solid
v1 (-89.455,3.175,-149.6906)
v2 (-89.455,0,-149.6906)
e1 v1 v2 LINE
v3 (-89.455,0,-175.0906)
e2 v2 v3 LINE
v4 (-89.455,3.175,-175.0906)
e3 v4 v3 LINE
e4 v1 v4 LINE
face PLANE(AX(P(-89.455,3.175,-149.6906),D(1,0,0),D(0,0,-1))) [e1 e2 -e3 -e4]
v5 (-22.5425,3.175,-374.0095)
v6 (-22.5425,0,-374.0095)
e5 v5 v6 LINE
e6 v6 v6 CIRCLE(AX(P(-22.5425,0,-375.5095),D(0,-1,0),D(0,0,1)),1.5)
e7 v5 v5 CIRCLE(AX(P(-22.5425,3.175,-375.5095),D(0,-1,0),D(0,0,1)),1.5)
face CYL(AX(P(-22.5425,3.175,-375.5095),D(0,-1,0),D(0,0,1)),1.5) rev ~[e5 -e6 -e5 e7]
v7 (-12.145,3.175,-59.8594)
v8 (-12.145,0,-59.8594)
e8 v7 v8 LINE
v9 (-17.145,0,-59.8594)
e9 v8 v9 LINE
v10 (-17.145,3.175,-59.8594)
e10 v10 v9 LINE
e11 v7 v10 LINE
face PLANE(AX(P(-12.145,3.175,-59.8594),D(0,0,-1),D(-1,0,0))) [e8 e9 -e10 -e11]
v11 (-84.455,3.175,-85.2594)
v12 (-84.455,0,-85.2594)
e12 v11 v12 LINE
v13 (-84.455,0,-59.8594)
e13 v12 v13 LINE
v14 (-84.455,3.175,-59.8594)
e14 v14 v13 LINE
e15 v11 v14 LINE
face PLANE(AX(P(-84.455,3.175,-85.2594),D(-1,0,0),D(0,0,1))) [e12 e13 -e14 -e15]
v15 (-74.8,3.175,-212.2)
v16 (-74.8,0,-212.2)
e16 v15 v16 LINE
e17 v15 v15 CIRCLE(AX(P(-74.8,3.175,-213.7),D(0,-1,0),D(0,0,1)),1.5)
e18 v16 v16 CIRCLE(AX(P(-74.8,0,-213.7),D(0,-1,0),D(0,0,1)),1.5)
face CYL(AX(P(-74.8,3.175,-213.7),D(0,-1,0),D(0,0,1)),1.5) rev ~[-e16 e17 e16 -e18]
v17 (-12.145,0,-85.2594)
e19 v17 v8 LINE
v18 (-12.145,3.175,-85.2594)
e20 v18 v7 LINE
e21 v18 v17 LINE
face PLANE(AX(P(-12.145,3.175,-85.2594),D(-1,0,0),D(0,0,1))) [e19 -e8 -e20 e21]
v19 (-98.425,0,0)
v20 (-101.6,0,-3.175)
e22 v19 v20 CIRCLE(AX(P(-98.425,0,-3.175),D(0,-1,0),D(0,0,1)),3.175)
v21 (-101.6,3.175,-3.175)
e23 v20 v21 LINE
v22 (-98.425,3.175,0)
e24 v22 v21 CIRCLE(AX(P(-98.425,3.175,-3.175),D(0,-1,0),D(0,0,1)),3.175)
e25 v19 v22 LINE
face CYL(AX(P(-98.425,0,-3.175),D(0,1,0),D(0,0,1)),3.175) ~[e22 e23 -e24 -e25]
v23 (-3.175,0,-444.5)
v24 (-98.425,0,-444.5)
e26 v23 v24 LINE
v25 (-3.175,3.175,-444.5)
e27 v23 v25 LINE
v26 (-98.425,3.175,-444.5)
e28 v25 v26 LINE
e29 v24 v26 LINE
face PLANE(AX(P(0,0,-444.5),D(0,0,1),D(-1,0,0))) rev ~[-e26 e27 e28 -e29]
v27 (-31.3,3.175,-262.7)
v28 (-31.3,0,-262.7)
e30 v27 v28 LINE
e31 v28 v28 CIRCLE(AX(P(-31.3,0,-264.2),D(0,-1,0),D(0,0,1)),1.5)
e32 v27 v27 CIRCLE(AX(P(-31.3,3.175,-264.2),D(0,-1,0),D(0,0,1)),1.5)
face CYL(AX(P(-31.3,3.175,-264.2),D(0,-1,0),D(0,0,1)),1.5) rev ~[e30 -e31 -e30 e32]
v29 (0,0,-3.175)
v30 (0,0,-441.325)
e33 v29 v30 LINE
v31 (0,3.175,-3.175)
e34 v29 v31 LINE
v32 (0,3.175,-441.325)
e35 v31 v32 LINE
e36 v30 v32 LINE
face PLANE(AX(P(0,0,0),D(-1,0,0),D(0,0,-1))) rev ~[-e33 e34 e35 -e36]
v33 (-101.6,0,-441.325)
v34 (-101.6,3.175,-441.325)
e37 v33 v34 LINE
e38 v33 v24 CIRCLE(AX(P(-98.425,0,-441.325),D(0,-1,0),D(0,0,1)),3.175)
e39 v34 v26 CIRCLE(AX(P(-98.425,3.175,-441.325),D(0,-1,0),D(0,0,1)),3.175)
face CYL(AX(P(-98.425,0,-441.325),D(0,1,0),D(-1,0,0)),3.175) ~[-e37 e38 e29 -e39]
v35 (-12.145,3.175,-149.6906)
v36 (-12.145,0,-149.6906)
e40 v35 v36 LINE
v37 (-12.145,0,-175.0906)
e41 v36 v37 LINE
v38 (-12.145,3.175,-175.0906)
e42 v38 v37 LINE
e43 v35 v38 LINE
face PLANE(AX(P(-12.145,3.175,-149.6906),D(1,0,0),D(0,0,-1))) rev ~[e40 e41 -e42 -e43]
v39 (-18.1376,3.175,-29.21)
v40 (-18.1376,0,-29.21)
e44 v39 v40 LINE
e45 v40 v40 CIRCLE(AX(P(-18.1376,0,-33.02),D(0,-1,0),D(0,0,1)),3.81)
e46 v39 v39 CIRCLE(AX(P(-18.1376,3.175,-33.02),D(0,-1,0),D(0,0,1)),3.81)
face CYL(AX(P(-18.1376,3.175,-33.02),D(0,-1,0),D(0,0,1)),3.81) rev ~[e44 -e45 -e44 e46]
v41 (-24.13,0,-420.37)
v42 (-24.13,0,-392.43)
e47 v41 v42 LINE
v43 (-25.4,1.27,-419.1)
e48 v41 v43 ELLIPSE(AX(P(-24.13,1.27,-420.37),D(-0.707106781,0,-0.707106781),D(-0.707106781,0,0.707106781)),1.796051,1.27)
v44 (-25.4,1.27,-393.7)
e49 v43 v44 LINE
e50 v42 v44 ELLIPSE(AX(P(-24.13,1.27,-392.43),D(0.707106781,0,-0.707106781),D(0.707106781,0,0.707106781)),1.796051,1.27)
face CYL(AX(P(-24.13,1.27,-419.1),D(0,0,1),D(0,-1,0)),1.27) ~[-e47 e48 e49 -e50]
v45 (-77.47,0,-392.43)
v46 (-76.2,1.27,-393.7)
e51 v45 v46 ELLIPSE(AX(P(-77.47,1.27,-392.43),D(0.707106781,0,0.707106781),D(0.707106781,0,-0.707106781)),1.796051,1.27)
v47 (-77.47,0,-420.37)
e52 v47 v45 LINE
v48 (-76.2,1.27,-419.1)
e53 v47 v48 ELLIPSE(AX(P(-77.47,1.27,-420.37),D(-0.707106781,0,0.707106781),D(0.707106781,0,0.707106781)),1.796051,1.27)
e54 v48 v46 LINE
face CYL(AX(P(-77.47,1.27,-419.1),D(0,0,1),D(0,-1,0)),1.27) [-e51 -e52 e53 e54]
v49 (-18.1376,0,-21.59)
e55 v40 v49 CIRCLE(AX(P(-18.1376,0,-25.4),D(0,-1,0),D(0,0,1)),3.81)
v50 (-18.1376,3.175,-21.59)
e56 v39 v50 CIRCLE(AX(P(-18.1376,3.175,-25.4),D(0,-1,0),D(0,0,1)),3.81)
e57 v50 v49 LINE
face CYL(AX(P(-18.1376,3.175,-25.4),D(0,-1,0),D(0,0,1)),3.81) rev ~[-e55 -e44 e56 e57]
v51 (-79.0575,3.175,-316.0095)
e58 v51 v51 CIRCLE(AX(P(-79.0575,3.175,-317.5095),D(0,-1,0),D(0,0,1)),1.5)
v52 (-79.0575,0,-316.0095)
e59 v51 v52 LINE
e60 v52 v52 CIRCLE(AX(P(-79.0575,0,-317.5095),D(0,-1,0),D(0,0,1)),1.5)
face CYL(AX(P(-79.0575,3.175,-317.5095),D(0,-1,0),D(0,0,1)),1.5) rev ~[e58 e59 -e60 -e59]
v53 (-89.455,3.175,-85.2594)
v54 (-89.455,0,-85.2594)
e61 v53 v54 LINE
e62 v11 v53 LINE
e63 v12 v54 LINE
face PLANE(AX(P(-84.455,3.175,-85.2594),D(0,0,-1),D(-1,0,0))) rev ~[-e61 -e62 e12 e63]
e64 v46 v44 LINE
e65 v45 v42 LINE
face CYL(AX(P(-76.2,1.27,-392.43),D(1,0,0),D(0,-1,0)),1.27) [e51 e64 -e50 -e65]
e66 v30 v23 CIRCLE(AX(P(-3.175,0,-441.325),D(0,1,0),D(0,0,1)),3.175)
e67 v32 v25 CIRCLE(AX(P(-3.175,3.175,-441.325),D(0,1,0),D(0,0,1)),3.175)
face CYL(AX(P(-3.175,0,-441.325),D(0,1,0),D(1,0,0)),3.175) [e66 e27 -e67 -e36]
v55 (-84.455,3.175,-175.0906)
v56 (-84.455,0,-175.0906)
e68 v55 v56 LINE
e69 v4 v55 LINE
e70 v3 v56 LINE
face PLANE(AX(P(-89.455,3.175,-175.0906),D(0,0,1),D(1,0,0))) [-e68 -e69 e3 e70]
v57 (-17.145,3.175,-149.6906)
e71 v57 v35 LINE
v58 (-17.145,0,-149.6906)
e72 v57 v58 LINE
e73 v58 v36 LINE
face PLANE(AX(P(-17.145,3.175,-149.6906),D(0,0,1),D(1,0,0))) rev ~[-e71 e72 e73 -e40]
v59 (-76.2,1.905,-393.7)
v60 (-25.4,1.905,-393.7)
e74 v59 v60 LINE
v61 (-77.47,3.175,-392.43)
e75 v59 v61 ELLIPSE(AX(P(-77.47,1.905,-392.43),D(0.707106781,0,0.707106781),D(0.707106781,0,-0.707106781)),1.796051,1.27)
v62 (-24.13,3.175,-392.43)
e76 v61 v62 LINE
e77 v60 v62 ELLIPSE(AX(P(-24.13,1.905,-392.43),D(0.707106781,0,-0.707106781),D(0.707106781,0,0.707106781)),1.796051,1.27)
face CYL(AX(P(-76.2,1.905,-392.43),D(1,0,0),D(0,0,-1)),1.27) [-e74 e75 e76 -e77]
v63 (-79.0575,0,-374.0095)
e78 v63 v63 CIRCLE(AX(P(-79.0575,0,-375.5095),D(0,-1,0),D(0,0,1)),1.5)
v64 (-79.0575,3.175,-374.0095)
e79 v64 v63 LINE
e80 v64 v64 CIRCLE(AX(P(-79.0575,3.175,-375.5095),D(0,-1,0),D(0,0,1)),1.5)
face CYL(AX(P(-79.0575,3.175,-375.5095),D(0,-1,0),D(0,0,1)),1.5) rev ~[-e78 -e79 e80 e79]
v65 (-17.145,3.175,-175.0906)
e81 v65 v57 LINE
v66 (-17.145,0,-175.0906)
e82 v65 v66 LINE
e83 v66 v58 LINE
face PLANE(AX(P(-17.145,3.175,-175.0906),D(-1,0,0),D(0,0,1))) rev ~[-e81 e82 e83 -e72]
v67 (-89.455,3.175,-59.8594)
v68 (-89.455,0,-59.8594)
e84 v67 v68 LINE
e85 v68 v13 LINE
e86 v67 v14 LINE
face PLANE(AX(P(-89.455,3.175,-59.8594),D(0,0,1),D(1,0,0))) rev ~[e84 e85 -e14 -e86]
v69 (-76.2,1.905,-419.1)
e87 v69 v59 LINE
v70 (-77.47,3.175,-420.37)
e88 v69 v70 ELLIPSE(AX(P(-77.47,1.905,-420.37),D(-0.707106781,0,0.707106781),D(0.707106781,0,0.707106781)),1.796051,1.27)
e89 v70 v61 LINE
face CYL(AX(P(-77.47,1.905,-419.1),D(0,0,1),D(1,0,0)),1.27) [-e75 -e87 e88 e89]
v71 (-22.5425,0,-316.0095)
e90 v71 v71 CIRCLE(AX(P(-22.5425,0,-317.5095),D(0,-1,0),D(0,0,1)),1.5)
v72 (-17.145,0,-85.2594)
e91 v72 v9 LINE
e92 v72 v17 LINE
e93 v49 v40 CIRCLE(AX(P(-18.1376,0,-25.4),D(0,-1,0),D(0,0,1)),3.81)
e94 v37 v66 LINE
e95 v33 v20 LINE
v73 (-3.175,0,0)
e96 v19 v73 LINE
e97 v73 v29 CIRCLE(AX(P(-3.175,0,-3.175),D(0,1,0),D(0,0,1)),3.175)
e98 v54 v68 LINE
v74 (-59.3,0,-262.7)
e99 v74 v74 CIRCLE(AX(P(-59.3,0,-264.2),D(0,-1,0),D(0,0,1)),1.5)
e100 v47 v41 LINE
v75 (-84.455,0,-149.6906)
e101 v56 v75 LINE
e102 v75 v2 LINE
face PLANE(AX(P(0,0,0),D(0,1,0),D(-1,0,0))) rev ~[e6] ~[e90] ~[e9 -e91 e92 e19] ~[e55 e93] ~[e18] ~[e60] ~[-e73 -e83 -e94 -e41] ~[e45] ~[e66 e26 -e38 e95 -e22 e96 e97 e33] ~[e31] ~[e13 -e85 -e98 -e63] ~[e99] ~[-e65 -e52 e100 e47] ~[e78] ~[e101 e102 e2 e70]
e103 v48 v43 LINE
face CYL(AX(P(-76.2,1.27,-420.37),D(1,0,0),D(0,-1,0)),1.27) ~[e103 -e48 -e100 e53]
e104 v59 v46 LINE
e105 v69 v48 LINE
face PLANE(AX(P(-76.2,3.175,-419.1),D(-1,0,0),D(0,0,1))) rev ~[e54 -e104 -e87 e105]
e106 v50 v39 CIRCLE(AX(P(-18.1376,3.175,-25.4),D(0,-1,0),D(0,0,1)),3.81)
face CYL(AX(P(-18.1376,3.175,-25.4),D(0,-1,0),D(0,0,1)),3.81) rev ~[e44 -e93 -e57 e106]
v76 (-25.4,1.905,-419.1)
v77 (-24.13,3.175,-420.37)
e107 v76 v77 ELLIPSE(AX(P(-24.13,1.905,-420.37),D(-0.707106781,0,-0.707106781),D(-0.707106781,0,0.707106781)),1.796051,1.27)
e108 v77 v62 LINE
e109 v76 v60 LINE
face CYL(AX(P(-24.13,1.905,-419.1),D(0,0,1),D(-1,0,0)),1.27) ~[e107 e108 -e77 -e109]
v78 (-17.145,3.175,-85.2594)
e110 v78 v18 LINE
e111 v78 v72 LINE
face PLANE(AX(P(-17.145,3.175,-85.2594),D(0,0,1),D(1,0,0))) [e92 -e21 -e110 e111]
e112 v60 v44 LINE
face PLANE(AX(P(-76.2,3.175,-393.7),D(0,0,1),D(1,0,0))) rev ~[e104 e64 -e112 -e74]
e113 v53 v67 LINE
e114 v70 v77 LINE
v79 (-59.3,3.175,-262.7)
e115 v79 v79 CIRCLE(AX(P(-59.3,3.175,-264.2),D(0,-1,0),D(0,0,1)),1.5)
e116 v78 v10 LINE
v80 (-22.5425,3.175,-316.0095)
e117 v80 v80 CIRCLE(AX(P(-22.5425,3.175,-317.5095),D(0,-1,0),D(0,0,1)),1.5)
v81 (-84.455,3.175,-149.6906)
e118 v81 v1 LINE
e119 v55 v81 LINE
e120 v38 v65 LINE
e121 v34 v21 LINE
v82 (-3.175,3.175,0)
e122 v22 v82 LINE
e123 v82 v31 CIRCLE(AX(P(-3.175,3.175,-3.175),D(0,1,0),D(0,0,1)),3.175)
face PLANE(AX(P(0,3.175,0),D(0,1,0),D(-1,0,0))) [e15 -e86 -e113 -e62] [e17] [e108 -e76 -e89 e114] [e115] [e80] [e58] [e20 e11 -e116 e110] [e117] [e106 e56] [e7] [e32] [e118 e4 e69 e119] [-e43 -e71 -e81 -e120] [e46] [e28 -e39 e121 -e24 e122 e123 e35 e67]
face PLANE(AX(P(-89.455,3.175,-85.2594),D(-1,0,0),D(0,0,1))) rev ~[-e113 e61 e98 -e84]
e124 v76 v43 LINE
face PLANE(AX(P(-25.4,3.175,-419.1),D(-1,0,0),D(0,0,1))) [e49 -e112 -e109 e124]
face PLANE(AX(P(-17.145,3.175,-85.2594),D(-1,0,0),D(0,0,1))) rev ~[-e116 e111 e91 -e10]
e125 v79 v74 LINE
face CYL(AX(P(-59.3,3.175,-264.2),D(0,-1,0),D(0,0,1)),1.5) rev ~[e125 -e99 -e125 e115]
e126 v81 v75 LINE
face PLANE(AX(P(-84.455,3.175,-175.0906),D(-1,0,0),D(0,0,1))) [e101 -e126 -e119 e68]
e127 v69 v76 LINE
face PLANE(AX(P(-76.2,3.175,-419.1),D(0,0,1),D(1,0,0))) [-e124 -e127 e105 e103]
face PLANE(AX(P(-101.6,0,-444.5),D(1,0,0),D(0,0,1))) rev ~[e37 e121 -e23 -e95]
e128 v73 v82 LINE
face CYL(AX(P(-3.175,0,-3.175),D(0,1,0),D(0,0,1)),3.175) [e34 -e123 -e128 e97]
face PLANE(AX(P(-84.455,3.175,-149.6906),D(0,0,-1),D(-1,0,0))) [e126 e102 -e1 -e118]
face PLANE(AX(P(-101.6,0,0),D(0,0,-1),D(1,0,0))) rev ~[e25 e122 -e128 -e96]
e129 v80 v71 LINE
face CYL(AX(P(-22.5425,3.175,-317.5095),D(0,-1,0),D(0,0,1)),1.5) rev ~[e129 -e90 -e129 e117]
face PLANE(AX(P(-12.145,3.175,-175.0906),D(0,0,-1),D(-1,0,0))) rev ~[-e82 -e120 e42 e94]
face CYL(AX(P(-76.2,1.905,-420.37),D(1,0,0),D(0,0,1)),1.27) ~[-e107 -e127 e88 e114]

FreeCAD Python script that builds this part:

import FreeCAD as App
import Part
import Sketcher

V = App.Vector
Q = App.Units.Quantity


def edges_at(feature, points):
    """Names of the edges that pass closest to the given points."""
    edges = feature.Shape.Edges
    near = lambda p: min(range(len(edges)), key=lambda i: edges[i].distToShape(Part.Vertex(*p))[0])
    return sorted({f"Edge{near(p) + 1}" for p in points})


def add_polygon(sketch, points):
    """Adds a closed chain of lines whose ends are joined by coincident constraints."""
    first, n = sketch.GeometryCount, len(points)
    for a, b in zip(points, points[1:] + points[:1]):
        sketch.addGeometry(Part.LineSegment(App.Vector(*a, 0), App.Vector(*b, 0)), False)
    for i in range(n):
        sketch.addConstraint(Sketcher.Constraint("Coincident", first + i, 2, first + (i + 1) % n, 1))

doc = App.newDocument("Part")
params = doc.addObject("Spreadsheet::Sheet", "Params")
for row, (alias, value) in enumerate([
    ("sketch1_width", "4 in"),
    ("sketch1_height", "17.5 in"),
    ("pad1_length", "0.125 in"),
    ("sketch2_height", "1 in"),
    ("sketch2_width", "2 in"),
    ("pocket1_length", "0.125 in"),
    ("hole_diameter", "0.1181102 in"),
    ("hole2_diameter", "0.1181102 in"),
    ("sketch5_height", "1 in"),
    ("pocket2_length", "0.125 in"),
    ("sketch6_diameter", "0.3 in"),
    ("hole3_diameter", "0.3 in"),
    ("fillet_radius", "0.125 in"),
    ("fillet2_radius", "0.125 in"),
    ("fillet3_radius", "0.05 in"),
], start=1):
    params.set(f"A{row}", alias)
    params.set(f"B{row}", "=" + value)
    params.setAlias(f"B{row}", alias)

body = doc.addObject("PartDesign::Body", "Body")

# Sketch on XZ plane
sketch1 = doc.addObject("Sketcher::SketchObject", "Sketch")
body.addObject(sketch1)
sketch1.AttachmentSupport = (doc.XZ_Plane, [""])
sketch1.MapMode = "FlatFace"
add_polygon(sketch1, [(-102, 0), (0, 0), (0, -444), (-102, -444)])  # lines 0-3
sketch1.addConstraint(Sketcher.Constraint("Horizontal", 0))
sketch1.addConstraint(Sketcher.Constraint("Vertical", 1))
sketch1.addConstraint(Sketcher.Constraint("Horizontal", 2))
sketch1.addConstraint(Sketcher.Constraint("Vertical", 3))
sketch1.addConstraint(Sketcher.Constraint("Coincident", 0, 2, -1, 1))
sketch1.addConstraint(Sketcher.Constraint("DistanceX", 0, 1, 0, 2, Q("4 in")))
sketch1.addConstraint(Sketcher.Constraint("DistanceY", 1, 2, 1, 1, Q("17.5 in")))
sketch1.setExpression("Constraints[9]", "Params.sketch1_width")
sketch1.setExpression("Constraints[10]", "Params.sketch1_height")
pad1 = doc.addObject("PartDesign::Pad", "Pad")
body.addObject(pad1)
pad1.Profile = sketch1
pad1.setExpression("Length", "Params.pad1_length")
pad1.Reversed = True

# Sketch on XZ plane
sketch2 = doc.addObject("Sketcher::SketchObject", "Sketch001")
body.addObject(sketch2)
sketch2.AttachmentSupport = (doc.XZ_Plane, [""])
sketch2.MapMode = "FlatFace"
sketch2.AttachmentOffset = App.Placement(V(0, 0, -0.125 * 25.4), App.Rotation())
add_polygon(sketch2, [(-25, -419), (-76, -419), (-76, -394), (-25, -394)])  # lines 0-3
sketch2.addConstraint(Sketcher.Constraint("Horizontal", 0))
sketch2.addConstraint(Sketcher.Constraint("Vertical", 1))
sketch2.addConstraint(Sketcher.Constraint("Horizontal", 2))
sketch2.addConstraint(Sketcher.Constraint("Vertical", 3))
sketch2.addConstraint(Sketcher.Constraint("DistanceY", 1, 1, 1, 2, Q("1 in")))
sketch2.addConstraint(Sketcher.Constraint("DistanceX", 2, 2, -1, 1, Q("1 in")))
sketch2.addConstraint(Sketcher.Constraint("DistanceX", 0, 2, 0, 1, Q("2 in")))
sketch2.addConstraint(Sketcher.Constraint("DistanceY", 0, 2, -1, 1, Q("16.5 in")))
sketch2.setExpression("Constraints[8]", "Params.sketch2_height")
sketch2.setExpression("Constraints[10]", "Params.sketch2_width")
pocket1 = doc.addObject("PartDesign::Pocket", "Pocket")
body.addObject(pocket1)
pocket1.Profile = sketch2
pocket1.setExpression("Length", "Params.pocket1_length")
pocket1.Reversed = True

# Sketch on XZ plane
sketch3 = doc.addObject("Sketcher::SketchObject", "Sketch002")
body.addObject(sketch3)
sketch3.AttachmentSupport = (doc.XZ_Plane, [""])
sketch3.MapMode = "FlatFace"
sketch3.AttachmentOffset = App.Placement(V(0, 0, -0.125 * 25.4), App.Rotation())
sketch3.addGeometry(Part.Circle(V(-79.1, -317.5, 0), V(0, 0, 1), 1.5), False)
sketch3.addGeometry(Part.Circle(V(-22.5, -317.5, 0), V(0, 0, 1), 1.5), False)
sketch3.addGeometry(Part.Circle(V(-79.1, -375.5, 0), V(0, 0, 1), 1.5), False)
sketch3.addGeometry(Part.Circle(V(-22.5, -375.5, 0), V(0, 0, 1), 1.5), False)
sketch3.addConstraint(Sketcher.Constraint("Equal", 0, 1))
sketch3.addConstraint(Sketcher.Constraint("Equal", 1, 2))
sketch3.addConstraint(Sketcher.Constraint("Equal", 2, 3))
sketch3.addConstraint(Sketcher.Constraint("Horizontal", 0, 3, 1, 3))
sketch3.addConstraint(Sketcher.Constraint("Horizontal", 2, 3, 3, 3))
sketch3.addConstraint(Sketcher.Constraint("Vertical", 0, 3, 2, 3))
sketch3.addConstraint(Sketcher.Constraint("Vertical", 1, 3, 3, 3))
sketch3.addConstraint(Sketcher.Constraint("Diameter", 0, Q("0.1181 in")))
sketch3.addConstraint(Sketcher.Constraint("DistanceX", 0, 3, 1, 3, Q("2.225 in")))
sketch3.addConstraint(Sketcher.Constraint("DistanceX", 0, 3, -1, 1, Q("3.1125 in")))
sketch3.addConstraint(Sketcher.Constraint("DistanceY", 0, 3, -1, 1, Q("317.5095 mm")))
sketch3.addConstraint(Sketcher.Constraint("DistanceY", 2, 3, -1, 1, Q("375.5095 mm")))
doc.recompute()
hole = doc.addObject("PartDesign::Hole", "Hole")
body.addObject(hole)
hole.Profile = sketch3
hole.ThreadType = "None"
hole.setExpression("Diameter", "Params.hole_diameter")
hole.DepthType = "ThroughAll"
hole.Reversed = True

# Sketch on XZ plane
sketch4 = doc.addObject("Sketcher::SketchObject", "Sketch003")
body.addObject(sketch4)
sketch4.AttachmentSupport = (doc.XZ_Plane, [""])
sketch4.MapMode = "FlatFace"
sketch4.AttachmentOffset = App.Placement(V(0, 0, -0.125 * 25.4), App.Rotation())
sketch4.addGeometry(Part.Circle(V(-74.8, -213.7, 0), V(0, 0, 1), 1.5), False)
sketch4.addGeometry(Part.Circle(V(-59.3, -264.2, 0), V(0, 0, 1), 1.5), False)
sketch4.addGeometry(Part.Circle(V(-31.3, -264.2, 0), V(0, 0, 1), 1.5), False)
sketch4.addConstraint(Sketcher.Constraint("Equal", 0, 1))
sketch4.addConstraint(Sketcher.Constraint("Equal", 1, 2))
sketch4.addConstraint(Sketcher.Constraint("Horizontal", 1, 3, 2, 3))
sketch4.addConstraint(Sketcher.Constraint("Diameter", 0, Q("0.1181 in")))
sketch4.addConstraint(Sketcher.Constraint("DistanceY", 1, 3, 0, 3, Q("1.9882 in")))
sketch4.addConstraint(Sketcher.Constraint("DistanceX", 0, 3, 2, 3, Q("1.7126 in")))
sketch4.addConstraint(Sketcher.Constraint("DistanceX", 0, 3, -1, 1, Q("74.8 mm")))
sketch4.addConstraint(Sketcher.Constraint("DistanceY", 0, 3, -1, 1, Q("213.7 mm")))
sketch4.addConstraint(Sketcher.Constraint("DistanceX", 1, 3, -1, 1, Q("59.3 mm")))
doc.recompute()
hole2 = doc.addObject("PartDesign::Hole", "Hole001")
body.addObject(hole2)
hole2.Profile = sketch4
hole2.ThreadType = "None"
hole2.setExpression("Diameter", "Params.hole2_diameter")
hole2.DepthType = "ThroughAll"
hole2.Reversed = True

# Sketch on XZ plane
sketch5 = doc.addObject("Sketcher::SketchObject", "Sketch004")
body.addObject(sketch5)
sketch5.AttachmentSupport = (doc.XZ_Plane, [""])
sketch5.MapMode = "FlatFace"
sketch5.AttachmentOffset = App.Placement(V(0, 0, -0.125 * 25.4), App.Rotation())
add_polygon(sketch5, [(-84, -150), (-84, -175), (-89, -175), (-89, -150)])  # lines 0-3
add_polygon(sketch5, [(-12, -175), (-17, -175), (-17, -150), (-12, -150)])  # lines 4-7
add_polygon(sketch5, [(-84, -60), (-84, -85), (-89, -85), (-89, -60)])  # lines 8-11
add_polygon(sketch5, [(-12, -85), (-17, -85), (-17, -60), (-12, -60)])  # lines 12-15
sketch5.addConstraint(Sketcher.Constraint("Vertical", 0))
sketch5.addConstraint(Sketcher.Constraint("Horizontal", 1))
sketch5.addConstraint(Sketcher.Constraint("Vertical", 2))
sketch5.addConstraint(Sketcher.Constraint("Horizontal", 3))
sketch5.addConstraint(Sketcher.Constraint("Horizontal", 4))
sketch5.addConstraint(Sketcher.Constraint("Vertical", 5))
sketch5.addConstraint(Sketcher.Constraint("Horizontal", 6))
sketch5.addConstraint(Sketcher.Constraint("Vertical", 7))
sketch5.addConstraint(Sketcher.Constraint("Vertical", 8))
sketch5.addConstraint(Sketcher.Constraint("Horizontal", 9))
sketch5.addConstraint(Sketcher.Constraint("Vertical", 10))
sketch5.addConstraint(Sketcher.Constraint("Horizontal", 11))
sketch5.addConstraint(Sketcher.Constraint("Horizontal", 12))
sketch5.addConstraint(Sketcher.Constraint("Vertical", 13))
sketch5.addConstraint(Sketcher.Constraint("Horizontal", 14))
sketch5.addConstraint(Sketcher.Constraint("Vertical", 15))
sketch5.addConstraint(Sketcher.Constraint("Horizontal", 1, 2, 4, 2))
sketch5.addConstraint(Sketcher.Constraint("Horizontal", 3, 2, 5, 2))
sketch5.addConstraint(Sketcher.Constraint("Horizontal", 9, 2, 12, 2))
sketch5.addConstraint(Sketcher.Constraint("Horizontal", 11, 2, 13, 2))
sketch5.addConstraint(Sketcher.Constraint("Vertical", 3, 2, 8, 2))
sketch5.addConstraint(Sketcher.Constraint("Vertical", 2, 2, 9, 2))
sketch5.addConstraint(Sketcher.Constraint("Vertical", 5, 2, 12, 2))
sketch5.addConstraint(Sketcher.Constraint("Vertical", 7, 2, 14, 2))
sketch5.addConstraint(Sketcher.Constraint("Equal", 3, 4))
sketch5.addConstraint(Sketcher.Constraint("Equal", 7, 8))
sketch5.addConstraint(Sketcher.Constraint("DistanceY", 0, 2, 0, 1, Q("1 in")))
sketch5.addConstraint(Sketcher.Constraint("DistanceX", 1, 2, 1, 1, Q("5 mm")))
sketch5.addConstraint(Sketcher.Constraint("DistanceX", 0, 2, 4, 2, Q("2.65 in")))
sketch5.addConstraint(Sketcher.Constraint("DistanceX", 0, 2, -1, 1, Q("3.325 in")))
sketch5.addConstraint(Sketcher.Constraint("DistanceY", 0, 2, -1, 1, Q("175.0906 mm")))
sketch5.addConstraint(Sketcher.Constraint("DistanceY", 8, 2, -1, 1, Q("85.2594 mm")))
sketch5.setExpression("Constraints[42]", "Params.sketch5_height")
pocket2 = doc.addObject("PartDesign::Pocket", "Pocket001")
body.addObject(pocket2)
pocket2.Profile = sketch5
pocket2.setExpression("Length", "Params.pocket2_length")
pocket2.Reversed = True

# Sketch on XZ plane
sketch6 = doc.addObject("Sketcher::SketchObject", "Sketch005")
body.addObject(sketch6)
sketch6.AttachmentSupport = (doc.XZ_Plane, [""])
sketch6.MapMode = "FlatFace"
sketch6.AttachmentOffset = App.Placement(V(0, 0, -0.125 * 25.4), App.Rotation())
sketch6.addGeometry(Part.Circle(V(-18.1, -33, 0), V(0, 0, 1), 3.8), False)
sketch6.addGeometry(Part.Circle(V(-18.1, -25.4, 0), V(0, 0, 1), 3.8), False)
sketch6.addConstraint(Sketcher.Constraint("Equal", 0, 1))
sketch6.addConstraint(Sketcher.Constraint("Vertical", 0, 3, 1, 3))
sketch6.addConstraint(Sketcher.Constraint("Diameter", 0, Q("0.3 in")))
sketch6.addConstraint(Sketcher.Constraint("DistanceY", 1, 3, -1, 1, Q("1 in")))
sketch6.addConstraint(Sketcher.Constraint("DistanceY", 0, 3, -1, 1, Q("1.3 in")))
sketch6.addConstraint(Sketcher.Constraint("DistanceX", 0, 3, -1, 1, Q("18.1376 mm")))
sketch6.setExpression("Constraints[2]", "Params.sketch6_diameter")
doc.recompute()
hole3 = doc.addObject("PartDesign::Hole", "Hole002")
body.addObject(hole3)
hole3.Profile = sketch6
hole3.ThreadType = "None"
hole3.setExpression("Diameter", "Params.hole3_diameter")
hole3.DepthType = "ThroughAll"
hole3.Reversed = True
doc.recompute()

fillet = doc.addObject("PartDesign::Fillet", "Fillet")
body.addObject(fillet)
fillet.Base = (hole3, edges_at(hole3, [(0, 1.587, -444.5), (-101.6, 1.587, 0), (0, 1.587, 0)]))
fillet.setExpression("Radius", "Params.fillet_radius")
doc.recompute()

fillet2 = doc.addObject("PartDesign::Fillet", "Fillet001")
body.addObject(fillet2)
fillet2.Base = (fillet, edges_at(fillet, [(-101.6, 1.587, -444.5)]))
fillet2.setExpression("Radius", "Params.fillet2_radius")
doc.recompute()

fillet3 = doc.addObject("PartDesign::Fillet", "Fillet002")
body.addObject(fillet3)
fillet3.Base = (fillet2, edges_at(fillet2, [
    (-50.8, 0, -393.7),
    (-50.8, 3.175, -393.7),
    (-25.4, 0, -406.4),
    (-25.4, 3.175, -406.4),
    (-50.8, 3.175, -419.1),
    (-76.2, 3.175, -406.4),
    (-76.2, 0, -406.4),
    (-50.8, 0, -419.1),
]))
fillet3.setExpression("Radius", "Params.fillet3_radius")

doc.recompute()
